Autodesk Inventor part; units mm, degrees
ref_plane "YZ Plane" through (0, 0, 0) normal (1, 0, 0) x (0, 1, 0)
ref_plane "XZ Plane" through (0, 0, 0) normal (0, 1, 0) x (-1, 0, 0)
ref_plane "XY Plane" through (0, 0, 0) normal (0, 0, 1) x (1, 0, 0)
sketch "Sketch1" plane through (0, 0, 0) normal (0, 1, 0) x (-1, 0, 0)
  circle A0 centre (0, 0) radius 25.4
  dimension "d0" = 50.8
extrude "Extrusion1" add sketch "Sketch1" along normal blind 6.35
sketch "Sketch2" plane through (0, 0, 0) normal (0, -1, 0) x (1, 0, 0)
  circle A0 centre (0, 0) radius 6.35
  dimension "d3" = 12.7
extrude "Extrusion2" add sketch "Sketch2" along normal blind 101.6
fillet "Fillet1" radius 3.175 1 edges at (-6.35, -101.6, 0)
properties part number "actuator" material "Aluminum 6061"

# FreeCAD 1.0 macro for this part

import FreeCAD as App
import Part
import Sketcher
Q = App.Units.Quantity


def edges_at(feature, points):
    """Names of the edges that pass closest to the given points."""
    edges = feature.Shape.Edges
    near = lambda p: min(range(len(edges)), key=lambda i: edges[i].distToShape(Part.Vertex(*p))[0])
    return sorted({f"Edge{near(p) + 1}" for p in points})

doc = App.newDocument("Part")
body = doc.addObject("PartDesign::Body", "Body")

# Sketch on XZ plane
sketch1 = doc.addObject("Sketcher::SketchObject", "Sketch")
body.addObject(sketch1)
sketch1.AttachmentSupport = (doc.XZ_Plane, [""])
sketch1.MapMode = "FlatFace"
sketch1.addGeometry(Part.Circle(App.Vector(0, 0, 0), App.Vector(0, 0, 1), 25), False)
sketch1.addConstraint([
    Sketcher.Constraint("Coincident", 0, 3, -1, 1),
    Sketcher.Constraint("Diameter", 0, Q("2 in")),
])
pad1 = doc.addObject("PartDesign::Pad", "Pad")
body.addObject(pad1)
pad1.Profile = sketch1
pad1.Length = Q("0.25 in")
pad1.Reversed = True

# Sketch on XZ plane
sketch2 = doc.addObject("Sketcher::SketchObject", "Sketch001")
body.addObject(sketch2)
sketch2.AttachmentSupport = (doc.XZ_Plane, [""])
sketch2.MapMode = "FlatFace"
sketch2.addGeometry(Part.Circle(App.Vector(0, 0, 0), App.Vector(0, 0, 1), 6), False)
sketch2.addConstraint([
    Sketcher.Constraint("Coincident", 0, 3, -1, 1),
    Sketcher.Constraint("Diameter", 0, Q("0.5 in")),
])
pad2 = doc.addObject("PartDesign::Pad", "Pad001")
body.addObject(pad2)
pad2.Profile = sketch2
pad2.Length = Q("4 in")
doc.recompute()

fillet = doc.addObject("PartDesign::Fillet", "Fillet")
body.addObject(fillet)
fillet.Base = (pad2, edges_at(pad2, [(-6.35, -101.6, 0)]))
fillet.Radius = Q("0.125 in")

doc.recompute()
